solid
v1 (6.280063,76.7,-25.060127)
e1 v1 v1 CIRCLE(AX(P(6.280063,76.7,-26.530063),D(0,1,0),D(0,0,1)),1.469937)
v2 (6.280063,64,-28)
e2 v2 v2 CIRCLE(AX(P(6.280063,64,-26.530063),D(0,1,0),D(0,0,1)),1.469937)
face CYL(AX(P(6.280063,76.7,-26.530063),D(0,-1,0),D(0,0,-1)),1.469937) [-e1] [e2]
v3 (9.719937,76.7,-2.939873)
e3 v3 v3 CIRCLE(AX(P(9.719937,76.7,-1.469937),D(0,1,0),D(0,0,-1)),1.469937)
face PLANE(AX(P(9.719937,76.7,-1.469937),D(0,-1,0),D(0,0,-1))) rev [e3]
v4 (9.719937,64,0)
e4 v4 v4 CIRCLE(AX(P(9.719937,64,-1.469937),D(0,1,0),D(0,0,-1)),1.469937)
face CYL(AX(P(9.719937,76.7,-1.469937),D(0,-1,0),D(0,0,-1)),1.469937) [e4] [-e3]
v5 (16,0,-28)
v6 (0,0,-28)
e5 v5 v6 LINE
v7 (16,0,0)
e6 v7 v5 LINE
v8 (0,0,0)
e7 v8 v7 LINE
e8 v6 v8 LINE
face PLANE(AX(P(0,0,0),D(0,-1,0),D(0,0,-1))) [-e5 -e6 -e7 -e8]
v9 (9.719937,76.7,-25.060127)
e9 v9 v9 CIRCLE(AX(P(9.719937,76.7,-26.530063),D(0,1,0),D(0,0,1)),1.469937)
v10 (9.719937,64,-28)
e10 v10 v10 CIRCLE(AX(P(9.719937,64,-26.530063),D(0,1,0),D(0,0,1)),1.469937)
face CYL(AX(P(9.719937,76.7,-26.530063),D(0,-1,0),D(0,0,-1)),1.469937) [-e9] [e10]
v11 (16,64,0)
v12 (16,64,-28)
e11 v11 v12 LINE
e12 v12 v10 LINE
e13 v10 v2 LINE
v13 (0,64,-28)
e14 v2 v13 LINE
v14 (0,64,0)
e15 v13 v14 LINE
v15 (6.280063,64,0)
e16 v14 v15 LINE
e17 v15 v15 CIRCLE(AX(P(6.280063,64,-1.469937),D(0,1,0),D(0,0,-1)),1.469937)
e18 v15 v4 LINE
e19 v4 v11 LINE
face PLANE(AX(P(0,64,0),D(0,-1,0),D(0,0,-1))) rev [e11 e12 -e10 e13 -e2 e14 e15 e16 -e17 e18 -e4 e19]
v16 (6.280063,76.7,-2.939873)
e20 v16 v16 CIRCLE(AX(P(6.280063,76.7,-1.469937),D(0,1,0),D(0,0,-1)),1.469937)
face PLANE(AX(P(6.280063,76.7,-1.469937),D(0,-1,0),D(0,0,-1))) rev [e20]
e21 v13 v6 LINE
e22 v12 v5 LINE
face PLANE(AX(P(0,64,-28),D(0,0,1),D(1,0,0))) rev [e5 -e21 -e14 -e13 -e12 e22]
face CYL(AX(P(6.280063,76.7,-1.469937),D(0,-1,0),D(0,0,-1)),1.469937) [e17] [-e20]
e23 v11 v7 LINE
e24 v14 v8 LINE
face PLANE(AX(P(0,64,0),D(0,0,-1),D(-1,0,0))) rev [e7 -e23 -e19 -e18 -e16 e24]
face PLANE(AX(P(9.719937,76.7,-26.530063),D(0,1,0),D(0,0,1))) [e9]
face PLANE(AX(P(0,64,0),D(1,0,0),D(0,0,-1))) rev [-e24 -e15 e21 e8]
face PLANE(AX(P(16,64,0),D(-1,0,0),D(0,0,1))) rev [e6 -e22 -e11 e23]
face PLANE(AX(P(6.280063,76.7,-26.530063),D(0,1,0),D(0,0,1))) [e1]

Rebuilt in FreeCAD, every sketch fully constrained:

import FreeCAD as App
import Part
import Sketcher

V = App.Vector
Q = App.Units.Quantity


def add_polygon(sketch, points):
    """Adds a closed chain of lines whose ends are joined by coincident constraints."""
    first, n = sketch.GeometryCount, len(points)
    for a, b in zip(points, points[1:] + points[:1]):
        sketch.addGeometry(Part.LineSegment(App.Vector(*a, 0), App.Vector(*b, 0)), False)
    for i in range(n):
        sketch.addConstraint(Sketcher.Constraint("Coincident", first + i, 2, first + (i + 1) % n, 1))

doc = App.newDocument("Part")
params = doc.addObject("Spreadsheet::Sheet", "Params")
for row, (alias, value) in enumerate([
    ("sketch1_width", "16 mm"),
    ("sketch1_height", "28 mm"),
    ("pad1_length", "64 mm"),
    ("pad2_length", "12.7 mm"),
], start=1):
    params.set(f"A{row}", alias)
    params.set(f"B{row}", "=" + value)
    params.setAlias(f"B{row}", alias)

body = doc.addObject("PartDesign::Body", "Body")

sketch1 = body.newObject("Sketcher::SketchObject", "Sketch")
sketch1.AttachmentSupport = (doc.getObject("XZ_Plane"), [""])
sketch1.MapMode = "FlatFace"
add_polygon(sketch1, [(0, -28), (0, 0), (16, 0), (16, -28)])
sketch1.addConstraint(Sketcher.Constraint("Vertical", 0))
sketch1.addConstraint(Sketcher.Constraint("Horizontal", 1))
sketch1.addConstraint(Sketcher.Constraint("Vertical", 2))
sketch1.addConstraint(Sketcher.Constraint("Horizontal", 3))
sketch1.addConstraint(Sketcher.Constraint("Coincident", 0, 2, -1, 1))
sketch1.addConstraint(Sketcher.Constraint("DistanceX", 1, 1, 1, 2, Q("16 mm")))
sketch1.addConstraint(Sketcher.Constraint("DistanceY", 0, 1, 0, 2, Q("28 mm")))
sketch1.setExpression("Constraints[9]", "Params.sketch1_width")
sketch1.setExpression("Constraints[10]", "Params.sketch1_height")
pad1 = body.newObject("PartDesign::Pad", "Pad")
pad1.Profile = sketch1
pad1.setExpression("Length", "Params.pad1_length")
pad1.Reversed = True

sketch2 = body.newObject("Sketcher::SketchObject", "Sketch001")
sketch2.AttachmentSupport = (doc.getObject("XZ_Plane"), [""])
sketch2.MapMode = "FlatFace"
sketch2.AttachmentOffset = App.Placement(V(0, 0, -64), App.Rotation())
sketch2.addGeometry(Part.Circle(V(6.3, -26.5, 0), V(0, 0, 1), 1.5), False)
sketch2.addGeometry(Part.Circle(V(9.7, -26.5, 0), V(0, 0, 1), 1.5), False)
sketch2.addGeometry(Part.Circle(V(6.3, -1.5, 0), V(0, 0, 1), 1.5), False)
sketch2.addGeometry(Part.Circle(V(9.7, -1.5, 0), V(0, 0, 1), 1.5), False)
sketch2.addConstraint(Sketcher.Constraint("Equal", 0, 1))
sketch2.addConstraint(Sketcher.Constraint("Equal", 1, 2))
sketch2.addConstraint(Sketcher.Constraint("Equal", 2, 3))
sketch2.addConstraint(Sketcher.Constraint("Horizontal", 0, 3, 1, 3))
sketch2.addConstraint(Sketcher.Constraint("Horizontal", 2, 3, 3, 3))
sketch2.addConstraint(Sketcher.Constraint("Vertical", 0, 3, 2, 3))
sketch2.addConstraint(Sketcher.Constraint("Vertical", 1, 3, 3, 3))
sketch2.addConstraint(Sketcher.Constraint("Diameter", 0, Q("2.939873 mm")))
sketch2.addConstraint(Sketcher.Constraint("DistanceX", -1, 1, 0, 3, Q("6.280063 mm")))
sketch2.addConstraint(Sketcher.Constraint("DistanceY", 0, 3, -1, 1, Q("26.530063 mm")))
sketch2.addConstraint(Sketcher.Constraint("DistanceX", -1, 1, 1, 3, Q("9.719937 mm")))
sketch2.addConstraint(Sketcher.Constraint("DistanceY", 2, 3, -1, 1, Q("1.469937 mm")))
pad2 = body.newObject("PartDesign::Pad", "Pad001")
pad2.Profile = sketch2
pad2.setExpression("Length", "Params.pad2_length")
pad2.Reversed = True

doc.recompute()
